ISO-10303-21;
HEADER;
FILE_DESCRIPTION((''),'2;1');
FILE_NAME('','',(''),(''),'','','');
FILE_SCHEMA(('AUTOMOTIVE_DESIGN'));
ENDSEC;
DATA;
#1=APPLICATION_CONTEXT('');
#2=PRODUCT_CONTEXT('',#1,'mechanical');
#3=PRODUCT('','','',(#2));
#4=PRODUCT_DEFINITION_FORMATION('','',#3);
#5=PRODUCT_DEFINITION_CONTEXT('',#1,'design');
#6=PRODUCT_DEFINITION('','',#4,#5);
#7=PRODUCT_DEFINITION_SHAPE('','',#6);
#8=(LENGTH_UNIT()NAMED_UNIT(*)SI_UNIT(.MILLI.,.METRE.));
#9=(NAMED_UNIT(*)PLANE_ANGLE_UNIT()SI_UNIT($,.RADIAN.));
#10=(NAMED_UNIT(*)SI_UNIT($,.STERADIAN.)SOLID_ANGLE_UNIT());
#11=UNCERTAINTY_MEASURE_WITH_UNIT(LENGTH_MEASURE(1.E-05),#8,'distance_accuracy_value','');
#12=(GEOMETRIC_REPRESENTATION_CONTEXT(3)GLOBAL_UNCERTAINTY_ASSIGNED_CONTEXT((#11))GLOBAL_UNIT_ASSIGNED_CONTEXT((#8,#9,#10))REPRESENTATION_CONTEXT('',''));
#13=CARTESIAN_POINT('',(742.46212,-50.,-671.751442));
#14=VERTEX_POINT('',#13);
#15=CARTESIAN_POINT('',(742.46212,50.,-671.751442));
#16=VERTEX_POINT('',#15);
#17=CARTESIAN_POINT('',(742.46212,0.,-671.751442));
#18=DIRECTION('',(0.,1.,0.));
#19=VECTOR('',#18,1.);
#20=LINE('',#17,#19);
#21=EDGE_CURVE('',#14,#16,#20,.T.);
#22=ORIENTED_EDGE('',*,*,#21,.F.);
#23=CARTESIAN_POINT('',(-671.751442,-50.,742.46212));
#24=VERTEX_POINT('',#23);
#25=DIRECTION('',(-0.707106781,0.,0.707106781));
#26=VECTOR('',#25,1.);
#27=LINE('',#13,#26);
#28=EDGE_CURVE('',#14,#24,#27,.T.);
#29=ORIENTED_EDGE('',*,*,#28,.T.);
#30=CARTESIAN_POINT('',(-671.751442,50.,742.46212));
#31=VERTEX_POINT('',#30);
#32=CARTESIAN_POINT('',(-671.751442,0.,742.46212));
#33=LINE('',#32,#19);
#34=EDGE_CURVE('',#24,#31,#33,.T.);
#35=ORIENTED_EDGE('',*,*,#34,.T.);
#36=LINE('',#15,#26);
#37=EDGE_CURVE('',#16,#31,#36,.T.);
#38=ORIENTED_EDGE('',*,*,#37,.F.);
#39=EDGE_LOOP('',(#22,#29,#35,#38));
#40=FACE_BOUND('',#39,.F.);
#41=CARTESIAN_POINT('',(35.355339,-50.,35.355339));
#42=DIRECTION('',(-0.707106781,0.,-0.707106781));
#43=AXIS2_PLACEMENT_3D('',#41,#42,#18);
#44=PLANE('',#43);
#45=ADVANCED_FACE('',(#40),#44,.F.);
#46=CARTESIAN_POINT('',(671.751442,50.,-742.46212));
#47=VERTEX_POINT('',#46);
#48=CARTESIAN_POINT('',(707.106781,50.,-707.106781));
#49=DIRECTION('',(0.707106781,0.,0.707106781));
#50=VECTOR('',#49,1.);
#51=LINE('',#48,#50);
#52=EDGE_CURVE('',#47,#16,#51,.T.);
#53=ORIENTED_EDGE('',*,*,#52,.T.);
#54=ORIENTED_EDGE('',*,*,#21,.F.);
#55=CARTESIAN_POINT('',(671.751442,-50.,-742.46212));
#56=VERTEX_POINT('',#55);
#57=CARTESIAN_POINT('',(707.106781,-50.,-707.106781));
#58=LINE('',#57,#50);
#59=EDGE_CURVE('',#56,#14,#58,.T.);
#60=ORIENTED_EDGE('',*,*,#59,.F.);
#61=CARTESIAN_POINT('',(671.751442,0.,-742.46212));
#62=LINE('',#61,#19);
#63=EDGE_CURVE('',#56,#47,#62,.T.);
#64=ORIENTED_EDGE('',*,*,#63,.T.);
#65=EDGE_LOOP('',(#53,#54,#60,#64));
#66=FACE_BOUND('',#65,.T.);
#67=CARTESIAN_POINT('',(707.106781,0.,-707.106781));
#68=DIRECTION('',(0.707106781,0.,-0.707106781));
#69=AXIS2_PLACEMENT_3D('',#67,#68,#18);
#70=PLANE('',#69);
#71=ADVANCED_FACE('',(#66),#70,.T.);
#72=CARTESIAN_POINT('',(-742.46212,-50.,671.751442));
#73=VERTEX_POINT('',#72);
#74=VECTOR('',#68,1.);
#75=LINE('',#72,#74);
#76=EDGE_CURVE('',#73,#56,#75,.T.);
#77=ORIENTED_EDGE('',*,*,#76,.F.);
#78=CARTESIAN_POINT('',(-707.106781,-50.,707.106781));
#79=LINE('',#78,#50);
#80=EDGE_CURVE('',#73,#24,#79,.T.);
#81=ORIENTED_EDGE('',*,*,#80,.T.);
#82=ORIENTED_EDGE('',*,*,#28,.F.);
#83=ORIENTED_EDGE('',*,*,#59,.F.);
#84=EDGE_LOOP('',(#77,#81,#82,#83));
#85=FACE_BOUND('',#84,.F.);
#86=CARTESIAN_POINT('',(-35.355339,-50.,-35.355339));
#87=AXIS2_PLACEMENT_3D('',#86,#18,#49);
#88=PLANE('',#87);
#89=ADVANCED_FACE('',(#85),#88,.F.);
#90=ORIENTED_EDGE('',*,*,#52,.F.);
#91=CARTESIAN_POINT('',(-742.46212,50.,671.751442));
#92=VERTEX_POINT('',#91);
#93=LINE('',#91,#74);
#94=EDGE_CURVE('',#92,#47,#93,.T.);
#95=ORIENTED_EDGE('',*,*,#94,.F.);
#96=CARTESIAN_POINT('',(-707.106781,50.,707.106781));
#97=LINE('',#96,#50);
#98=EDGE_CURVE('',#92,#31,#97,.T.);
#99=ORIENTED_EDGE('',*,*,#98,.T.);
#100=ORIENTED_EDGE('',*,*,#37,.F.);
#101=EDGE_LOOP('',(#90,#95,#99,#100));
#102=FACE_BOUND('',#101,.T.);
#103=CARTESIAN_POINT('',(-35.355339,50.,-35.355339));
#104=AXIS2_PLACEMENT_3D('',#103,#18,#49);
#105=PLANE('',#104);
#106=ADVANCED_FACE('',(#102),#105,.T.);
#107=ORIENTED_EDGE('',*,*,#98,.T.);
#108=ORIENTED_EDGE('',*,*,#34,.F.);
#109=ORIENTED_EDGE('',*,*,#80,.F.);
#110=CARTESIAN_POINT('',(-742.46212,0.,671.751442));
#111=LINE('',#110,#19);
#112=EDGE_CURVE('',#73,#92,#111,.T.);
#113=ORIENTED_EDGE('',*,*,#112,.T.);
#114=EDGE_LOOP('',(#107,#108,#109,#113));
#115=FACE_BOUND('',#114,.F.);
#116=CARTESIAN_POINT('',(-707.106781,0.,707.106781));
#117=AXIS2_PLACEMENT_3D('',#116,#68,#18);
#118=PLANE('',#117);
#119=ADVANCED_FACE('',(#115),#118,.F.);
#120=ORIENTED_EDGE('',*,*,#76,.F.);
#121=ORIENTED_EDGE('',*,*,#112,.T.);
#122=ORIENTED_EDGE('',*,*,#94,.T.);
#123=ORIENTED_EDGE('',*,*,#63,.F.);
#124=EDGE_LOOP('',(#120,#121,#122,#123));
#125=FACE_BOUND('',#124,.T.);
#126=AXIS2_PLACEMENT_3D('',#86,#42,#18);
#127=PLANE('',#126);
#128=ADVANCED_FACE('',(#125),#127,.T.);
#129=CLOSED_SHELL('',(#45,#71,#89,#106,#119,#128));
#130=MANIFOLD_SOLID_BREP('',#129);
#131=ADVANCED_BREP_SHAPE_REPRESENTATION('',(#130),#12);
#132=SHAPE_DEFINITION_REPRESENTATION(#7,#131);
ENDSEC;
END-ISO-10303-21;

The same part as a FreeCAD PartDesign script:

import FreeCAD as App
import Part
import Sketcher
from FreeCAD import Vector
Q = App.Units.Quantity


def add_polygon(sketch, points):
    """Adds a closed chain of lines whose ends are joined by coincident constraints."""
    first, n = sketch.GeometryCount, len(points)
    for a, b in zip(points, points[1:] + points[:1]):
        sketch.addGeometry(Part.LineSegment(App.Vector(*a, 0), App.Vector(*b, 0)), False)
    for i in range(n):
        sketch.addConstraint(Sketcher.Constraint("Coincident", first + i, 2, first + (i + 1) % n, 1))

doc = App.newDocument("Part")
body = doc.addObject("PartDesign::Body", "Body")

# Sketch on an angled plane
sketch1 = body.newObject("Sketcher::SketchObject", "Sketch")
sketch1.Placement = App.Placement(Vector(0, 0, 0), App.Rotation(Vector(0, 1, 0), Vector(0.707106781, 0, 0.707106781), Vector(0.707106781, 0, -0.707106781), "ZXY"))
add_polygon(sketch1, [(-50, 50), (-50, -50), (50, -50), (50, 50)])  # lines 0-3
sketch1.addConstraint(Sketcher.Constraint("Vertical", 0))
sketch1.addConstraint(Sketcher.Constraint("Horizontal", 1))
sketch1.addConstraint(Sketcher.Constraint("Vertical", 2))
sketch1.addConstraint(Sketcher.Constraint("Horizontal", 3))
sketch1.addConstraint(Sketcher.Constraint("Symmetric", 0, 2, 2, 2, -1, 1))
sketch1.addConstraint(Sketcher.Constraint("Equal", 3, 0))
sketch1.addConstraint(Sketcher.Constraint("DistanceX", 1, 1, 1, 2, Q("100 mm")))
pad1 = body.newObject("PartDesign::Pad", "Pad")
pad1.Profile = sketch1
pad1.Type = "TwoLengths"
pad1.Length = 1000
pad1.Length2 = 1000

doc.recompute()
